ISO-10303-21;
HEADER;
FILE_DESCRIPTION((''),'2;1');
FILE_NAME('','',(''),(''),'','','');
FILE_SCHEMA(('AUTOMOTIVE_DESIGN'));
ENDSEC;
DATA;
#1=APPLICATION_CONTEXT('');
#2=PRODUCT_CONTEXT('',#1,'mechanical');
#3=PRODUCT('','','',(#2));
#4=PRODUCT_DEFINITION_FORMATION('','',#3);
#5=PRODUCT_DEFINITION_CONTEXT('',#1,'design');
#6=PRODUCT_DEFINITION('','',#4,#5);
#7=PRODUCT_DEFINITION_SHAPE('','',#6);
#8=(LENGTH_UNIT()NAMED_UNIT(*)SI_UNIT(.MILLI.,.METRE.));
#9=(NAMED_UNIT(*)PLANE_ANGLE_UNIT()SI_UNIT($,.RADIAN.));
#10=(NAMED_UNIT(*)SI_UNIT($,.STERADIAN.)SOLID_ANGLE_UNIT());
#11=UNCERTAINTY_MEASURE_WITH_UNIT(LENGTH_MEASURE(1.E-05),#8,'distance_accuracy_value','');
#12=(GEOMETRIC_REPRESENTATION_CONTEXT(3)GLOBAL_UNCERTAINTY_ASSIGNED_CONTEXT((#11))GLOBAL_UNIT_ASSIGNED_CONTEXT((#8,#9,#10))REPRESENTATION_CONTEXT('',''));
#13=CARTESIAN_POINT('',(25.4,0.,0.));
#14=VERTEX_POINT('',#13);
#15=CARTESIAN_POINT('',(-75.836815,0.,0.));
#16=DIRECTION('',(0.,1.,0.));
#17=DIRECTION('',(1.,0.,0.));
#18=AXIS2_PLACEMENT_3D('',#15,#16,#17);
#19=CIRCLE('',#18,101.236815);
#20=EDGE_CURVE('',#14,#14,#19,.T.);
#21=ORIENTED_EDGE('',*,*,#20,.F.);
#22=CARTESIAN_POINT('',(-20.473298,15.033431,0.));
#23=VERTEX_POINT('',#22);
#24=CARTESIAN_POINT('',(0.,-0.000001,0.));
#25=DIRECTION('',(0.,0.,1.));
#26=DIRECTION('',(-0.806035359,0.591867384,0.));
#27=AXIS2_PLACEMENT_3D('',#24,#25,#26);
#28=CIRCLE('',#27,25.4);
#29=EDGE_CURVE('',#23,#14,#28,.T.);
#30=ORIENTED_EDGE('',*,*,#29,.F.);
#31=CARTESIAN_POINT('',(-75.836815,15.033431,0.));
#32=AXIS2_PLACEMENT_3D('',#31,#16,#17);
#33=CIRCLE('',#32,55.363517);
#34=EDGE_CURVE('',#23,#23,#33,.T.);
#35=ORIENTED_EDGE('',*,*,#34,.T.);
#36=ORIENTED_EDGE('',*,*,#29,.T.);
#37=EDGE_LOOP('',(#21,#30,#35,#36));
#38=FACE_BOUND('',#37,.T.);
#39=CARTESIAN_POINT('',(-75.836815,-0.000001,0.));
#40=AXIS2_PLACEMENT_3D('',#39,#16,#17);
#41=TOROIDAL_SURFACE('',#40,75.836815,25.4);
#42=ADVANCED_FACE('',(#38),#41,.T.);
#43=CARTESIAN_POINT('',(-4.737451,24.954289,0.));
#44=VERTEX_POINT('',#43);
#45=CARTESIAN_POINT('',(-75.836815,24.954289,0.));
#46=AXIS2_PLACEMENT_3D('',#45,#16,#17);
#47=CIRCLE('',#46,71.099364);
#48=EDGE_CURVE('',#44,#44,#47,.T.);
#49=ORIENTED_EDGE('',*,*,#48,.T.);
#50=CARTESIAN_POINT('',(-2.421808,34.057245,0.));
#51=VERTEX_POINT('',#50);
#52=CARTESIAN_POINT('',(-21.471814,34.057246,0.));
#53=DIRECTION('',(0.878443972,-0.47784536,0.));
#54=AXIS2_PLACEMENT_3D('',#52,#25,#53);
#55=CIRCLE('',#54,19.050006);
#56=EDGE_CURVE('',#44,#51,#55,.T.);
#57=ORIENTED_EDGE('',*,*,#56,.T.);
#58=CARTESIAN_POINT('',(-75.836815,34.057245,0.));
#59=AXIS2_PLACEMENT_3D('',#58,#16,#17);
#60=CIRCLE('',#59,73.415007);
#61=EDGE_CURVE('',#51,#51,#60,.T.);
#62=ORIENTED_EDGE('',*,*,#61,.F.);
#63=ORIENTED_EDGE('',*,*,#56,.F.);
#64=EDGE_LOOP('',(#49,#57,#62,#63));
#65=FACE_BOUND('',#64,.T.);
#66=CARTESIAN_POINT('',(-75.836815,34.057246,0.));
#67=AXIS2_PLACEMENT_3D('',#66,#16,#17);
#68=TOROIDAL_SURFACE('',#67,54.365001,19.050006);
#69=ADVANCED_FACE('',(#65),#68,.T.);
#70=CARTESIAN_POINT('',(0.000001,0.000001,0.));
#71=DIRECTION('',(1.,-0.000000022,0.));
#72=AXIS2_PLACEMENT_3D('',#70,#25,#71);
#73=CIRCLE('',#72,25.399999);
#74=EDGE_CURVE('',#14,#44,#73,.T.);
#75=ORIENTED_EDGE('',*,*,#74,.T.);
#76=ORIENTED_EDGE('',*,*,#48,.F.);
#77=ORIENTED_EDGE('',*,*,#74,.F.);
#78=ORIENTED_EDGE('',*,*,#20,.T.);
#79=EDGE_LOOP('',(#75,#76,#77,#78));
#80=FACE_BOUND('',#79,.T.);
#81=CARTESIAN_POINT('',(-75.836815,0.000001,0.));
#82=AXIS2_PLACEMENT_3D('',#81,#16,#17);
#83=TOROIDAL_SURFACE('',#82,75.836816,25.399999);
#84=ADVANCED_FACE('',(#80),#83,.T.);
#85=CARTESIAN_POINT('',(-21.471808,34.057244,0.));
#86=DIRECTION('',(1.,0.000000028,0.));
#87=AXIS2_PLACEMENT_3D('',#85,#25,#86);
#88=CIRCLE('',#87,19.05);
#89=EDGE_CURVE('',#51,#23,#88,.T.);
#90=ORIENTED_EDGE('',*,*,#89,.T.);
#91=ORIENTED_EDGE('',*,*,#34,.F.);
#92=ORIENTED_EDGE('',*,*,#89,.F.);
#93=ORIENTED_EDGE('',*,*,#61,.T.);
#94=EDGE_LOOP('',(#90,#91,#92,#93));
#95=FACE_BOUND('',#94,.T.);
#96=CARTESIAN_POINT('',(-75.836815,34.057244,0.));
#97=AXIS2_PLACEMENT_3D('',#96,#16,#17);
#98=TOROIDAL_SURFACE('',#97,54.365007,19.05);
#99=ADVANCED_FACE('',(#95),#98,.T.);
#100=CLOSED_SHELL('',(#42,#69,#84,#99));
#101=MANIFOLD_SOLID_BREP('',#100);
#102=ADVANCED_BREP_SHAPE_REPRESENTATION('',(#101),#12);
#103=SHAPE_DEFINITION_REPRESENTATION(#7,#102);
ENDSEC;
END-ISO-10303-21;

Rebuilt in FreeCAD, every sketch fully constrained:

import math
import FreeCAD as App
import Part
import Sketcher

V = App.Vector
Q = App.Units.Quantity

doc = App.newDocument("Part")
body = doc.addObject("PartDesign::Body", "Body")

sketch1 = body.newObject("Sketcher::SketchObject", "Sketch")
sketch1.AttachmentSupport = (doc.getObject("XY_Plane"), [""])
sketch1.MapMode = "FlatFace"
sketch1.addGeometry([
    Part.ArcOfCircle(Part.Circle(V(-21.471814, 34.057246, 0), V(0, 0, 1), 19.050006), math.radians(-28.544773), math.radians(-0.000002)),
    Part.ArcOfCircle(Part.Circle(V(-21.471808, 34.057244, 0), V(0, 0, 1), 19.05), math.radians(0.000002), math.radians(273.004548)),
    Part.ArcOfCircle(Part.Circle(V(0, -0.000001, 0), V(0, 0, 1), 25.4), math.radians(143.710364), math.radians(360.000001)),
    Part.ArcOfCircle(Part.Circle(V(0.000001, 0.000001, 0), V(0, 0, 1), 25.399999), math.radians(-0.000001), math.radians(100.749406)),
], False)
sketch1.addGeometry(Part.LineSegment(V(-75.836815, -0.000001, 0), V(-75.836815, 34.057246, 0)), True)
sketch1.addConstraint([
    Sketcher.Constraint("Tangent", 0, 2, 1, 1),
    Sketcher.Constraint("Coincident", 1, 2, 2, 1),
    Sketcher.Constraint("Tangent", 2, 2, 3, 1),
    Sketcher.Constraint("Coincident", 3, 2, 0, 1),
    Sketcher.Constraint("Vertical", 4),
    Sketcher.Constraint("Coincident", 2, 3, -1, 1),
    Sketcher.Constraint("Equal", 2, 3),
    Sketcher.Constraint("PointOnObject", 2, 2, -1),
    Sketcher.Constraint("PointOnObject", 4, 1, -1),
    Sketcher.Constraint("Horizontal", 1, 3, 0, 2),
    Sketcher.Constraint("Horizontal", 0, 2, 4, 2),
    Sketcher.Constraint("Radius", 2, Q("1 in")),
    Sketcher.Constraint("Radius", 1, Q("0.75 in")),
    Sketcher.Constraint("Radius", 0, Q("19.050006 mm")),
    Sketcher.Constraint("DistanceX", 1, 2, -1, 1, Q("20.473298 mm")),
    Sketcher.Constraint("DistanceX", 4, 1, 0, 3, Q("54.365001 mm")),
    Sketcher.Constraint("DistanceY", 4, 1, 4, 2, Q("34.057246 mm")),
])
revolution = body.newObject("PartDesign::Revolution", "Revolution")
revolution.Profile = sketch1
revolution.ReferenceAxis = (sketch1, ["Axis0"])
revolution.Angle = 360

doc.recompute()
